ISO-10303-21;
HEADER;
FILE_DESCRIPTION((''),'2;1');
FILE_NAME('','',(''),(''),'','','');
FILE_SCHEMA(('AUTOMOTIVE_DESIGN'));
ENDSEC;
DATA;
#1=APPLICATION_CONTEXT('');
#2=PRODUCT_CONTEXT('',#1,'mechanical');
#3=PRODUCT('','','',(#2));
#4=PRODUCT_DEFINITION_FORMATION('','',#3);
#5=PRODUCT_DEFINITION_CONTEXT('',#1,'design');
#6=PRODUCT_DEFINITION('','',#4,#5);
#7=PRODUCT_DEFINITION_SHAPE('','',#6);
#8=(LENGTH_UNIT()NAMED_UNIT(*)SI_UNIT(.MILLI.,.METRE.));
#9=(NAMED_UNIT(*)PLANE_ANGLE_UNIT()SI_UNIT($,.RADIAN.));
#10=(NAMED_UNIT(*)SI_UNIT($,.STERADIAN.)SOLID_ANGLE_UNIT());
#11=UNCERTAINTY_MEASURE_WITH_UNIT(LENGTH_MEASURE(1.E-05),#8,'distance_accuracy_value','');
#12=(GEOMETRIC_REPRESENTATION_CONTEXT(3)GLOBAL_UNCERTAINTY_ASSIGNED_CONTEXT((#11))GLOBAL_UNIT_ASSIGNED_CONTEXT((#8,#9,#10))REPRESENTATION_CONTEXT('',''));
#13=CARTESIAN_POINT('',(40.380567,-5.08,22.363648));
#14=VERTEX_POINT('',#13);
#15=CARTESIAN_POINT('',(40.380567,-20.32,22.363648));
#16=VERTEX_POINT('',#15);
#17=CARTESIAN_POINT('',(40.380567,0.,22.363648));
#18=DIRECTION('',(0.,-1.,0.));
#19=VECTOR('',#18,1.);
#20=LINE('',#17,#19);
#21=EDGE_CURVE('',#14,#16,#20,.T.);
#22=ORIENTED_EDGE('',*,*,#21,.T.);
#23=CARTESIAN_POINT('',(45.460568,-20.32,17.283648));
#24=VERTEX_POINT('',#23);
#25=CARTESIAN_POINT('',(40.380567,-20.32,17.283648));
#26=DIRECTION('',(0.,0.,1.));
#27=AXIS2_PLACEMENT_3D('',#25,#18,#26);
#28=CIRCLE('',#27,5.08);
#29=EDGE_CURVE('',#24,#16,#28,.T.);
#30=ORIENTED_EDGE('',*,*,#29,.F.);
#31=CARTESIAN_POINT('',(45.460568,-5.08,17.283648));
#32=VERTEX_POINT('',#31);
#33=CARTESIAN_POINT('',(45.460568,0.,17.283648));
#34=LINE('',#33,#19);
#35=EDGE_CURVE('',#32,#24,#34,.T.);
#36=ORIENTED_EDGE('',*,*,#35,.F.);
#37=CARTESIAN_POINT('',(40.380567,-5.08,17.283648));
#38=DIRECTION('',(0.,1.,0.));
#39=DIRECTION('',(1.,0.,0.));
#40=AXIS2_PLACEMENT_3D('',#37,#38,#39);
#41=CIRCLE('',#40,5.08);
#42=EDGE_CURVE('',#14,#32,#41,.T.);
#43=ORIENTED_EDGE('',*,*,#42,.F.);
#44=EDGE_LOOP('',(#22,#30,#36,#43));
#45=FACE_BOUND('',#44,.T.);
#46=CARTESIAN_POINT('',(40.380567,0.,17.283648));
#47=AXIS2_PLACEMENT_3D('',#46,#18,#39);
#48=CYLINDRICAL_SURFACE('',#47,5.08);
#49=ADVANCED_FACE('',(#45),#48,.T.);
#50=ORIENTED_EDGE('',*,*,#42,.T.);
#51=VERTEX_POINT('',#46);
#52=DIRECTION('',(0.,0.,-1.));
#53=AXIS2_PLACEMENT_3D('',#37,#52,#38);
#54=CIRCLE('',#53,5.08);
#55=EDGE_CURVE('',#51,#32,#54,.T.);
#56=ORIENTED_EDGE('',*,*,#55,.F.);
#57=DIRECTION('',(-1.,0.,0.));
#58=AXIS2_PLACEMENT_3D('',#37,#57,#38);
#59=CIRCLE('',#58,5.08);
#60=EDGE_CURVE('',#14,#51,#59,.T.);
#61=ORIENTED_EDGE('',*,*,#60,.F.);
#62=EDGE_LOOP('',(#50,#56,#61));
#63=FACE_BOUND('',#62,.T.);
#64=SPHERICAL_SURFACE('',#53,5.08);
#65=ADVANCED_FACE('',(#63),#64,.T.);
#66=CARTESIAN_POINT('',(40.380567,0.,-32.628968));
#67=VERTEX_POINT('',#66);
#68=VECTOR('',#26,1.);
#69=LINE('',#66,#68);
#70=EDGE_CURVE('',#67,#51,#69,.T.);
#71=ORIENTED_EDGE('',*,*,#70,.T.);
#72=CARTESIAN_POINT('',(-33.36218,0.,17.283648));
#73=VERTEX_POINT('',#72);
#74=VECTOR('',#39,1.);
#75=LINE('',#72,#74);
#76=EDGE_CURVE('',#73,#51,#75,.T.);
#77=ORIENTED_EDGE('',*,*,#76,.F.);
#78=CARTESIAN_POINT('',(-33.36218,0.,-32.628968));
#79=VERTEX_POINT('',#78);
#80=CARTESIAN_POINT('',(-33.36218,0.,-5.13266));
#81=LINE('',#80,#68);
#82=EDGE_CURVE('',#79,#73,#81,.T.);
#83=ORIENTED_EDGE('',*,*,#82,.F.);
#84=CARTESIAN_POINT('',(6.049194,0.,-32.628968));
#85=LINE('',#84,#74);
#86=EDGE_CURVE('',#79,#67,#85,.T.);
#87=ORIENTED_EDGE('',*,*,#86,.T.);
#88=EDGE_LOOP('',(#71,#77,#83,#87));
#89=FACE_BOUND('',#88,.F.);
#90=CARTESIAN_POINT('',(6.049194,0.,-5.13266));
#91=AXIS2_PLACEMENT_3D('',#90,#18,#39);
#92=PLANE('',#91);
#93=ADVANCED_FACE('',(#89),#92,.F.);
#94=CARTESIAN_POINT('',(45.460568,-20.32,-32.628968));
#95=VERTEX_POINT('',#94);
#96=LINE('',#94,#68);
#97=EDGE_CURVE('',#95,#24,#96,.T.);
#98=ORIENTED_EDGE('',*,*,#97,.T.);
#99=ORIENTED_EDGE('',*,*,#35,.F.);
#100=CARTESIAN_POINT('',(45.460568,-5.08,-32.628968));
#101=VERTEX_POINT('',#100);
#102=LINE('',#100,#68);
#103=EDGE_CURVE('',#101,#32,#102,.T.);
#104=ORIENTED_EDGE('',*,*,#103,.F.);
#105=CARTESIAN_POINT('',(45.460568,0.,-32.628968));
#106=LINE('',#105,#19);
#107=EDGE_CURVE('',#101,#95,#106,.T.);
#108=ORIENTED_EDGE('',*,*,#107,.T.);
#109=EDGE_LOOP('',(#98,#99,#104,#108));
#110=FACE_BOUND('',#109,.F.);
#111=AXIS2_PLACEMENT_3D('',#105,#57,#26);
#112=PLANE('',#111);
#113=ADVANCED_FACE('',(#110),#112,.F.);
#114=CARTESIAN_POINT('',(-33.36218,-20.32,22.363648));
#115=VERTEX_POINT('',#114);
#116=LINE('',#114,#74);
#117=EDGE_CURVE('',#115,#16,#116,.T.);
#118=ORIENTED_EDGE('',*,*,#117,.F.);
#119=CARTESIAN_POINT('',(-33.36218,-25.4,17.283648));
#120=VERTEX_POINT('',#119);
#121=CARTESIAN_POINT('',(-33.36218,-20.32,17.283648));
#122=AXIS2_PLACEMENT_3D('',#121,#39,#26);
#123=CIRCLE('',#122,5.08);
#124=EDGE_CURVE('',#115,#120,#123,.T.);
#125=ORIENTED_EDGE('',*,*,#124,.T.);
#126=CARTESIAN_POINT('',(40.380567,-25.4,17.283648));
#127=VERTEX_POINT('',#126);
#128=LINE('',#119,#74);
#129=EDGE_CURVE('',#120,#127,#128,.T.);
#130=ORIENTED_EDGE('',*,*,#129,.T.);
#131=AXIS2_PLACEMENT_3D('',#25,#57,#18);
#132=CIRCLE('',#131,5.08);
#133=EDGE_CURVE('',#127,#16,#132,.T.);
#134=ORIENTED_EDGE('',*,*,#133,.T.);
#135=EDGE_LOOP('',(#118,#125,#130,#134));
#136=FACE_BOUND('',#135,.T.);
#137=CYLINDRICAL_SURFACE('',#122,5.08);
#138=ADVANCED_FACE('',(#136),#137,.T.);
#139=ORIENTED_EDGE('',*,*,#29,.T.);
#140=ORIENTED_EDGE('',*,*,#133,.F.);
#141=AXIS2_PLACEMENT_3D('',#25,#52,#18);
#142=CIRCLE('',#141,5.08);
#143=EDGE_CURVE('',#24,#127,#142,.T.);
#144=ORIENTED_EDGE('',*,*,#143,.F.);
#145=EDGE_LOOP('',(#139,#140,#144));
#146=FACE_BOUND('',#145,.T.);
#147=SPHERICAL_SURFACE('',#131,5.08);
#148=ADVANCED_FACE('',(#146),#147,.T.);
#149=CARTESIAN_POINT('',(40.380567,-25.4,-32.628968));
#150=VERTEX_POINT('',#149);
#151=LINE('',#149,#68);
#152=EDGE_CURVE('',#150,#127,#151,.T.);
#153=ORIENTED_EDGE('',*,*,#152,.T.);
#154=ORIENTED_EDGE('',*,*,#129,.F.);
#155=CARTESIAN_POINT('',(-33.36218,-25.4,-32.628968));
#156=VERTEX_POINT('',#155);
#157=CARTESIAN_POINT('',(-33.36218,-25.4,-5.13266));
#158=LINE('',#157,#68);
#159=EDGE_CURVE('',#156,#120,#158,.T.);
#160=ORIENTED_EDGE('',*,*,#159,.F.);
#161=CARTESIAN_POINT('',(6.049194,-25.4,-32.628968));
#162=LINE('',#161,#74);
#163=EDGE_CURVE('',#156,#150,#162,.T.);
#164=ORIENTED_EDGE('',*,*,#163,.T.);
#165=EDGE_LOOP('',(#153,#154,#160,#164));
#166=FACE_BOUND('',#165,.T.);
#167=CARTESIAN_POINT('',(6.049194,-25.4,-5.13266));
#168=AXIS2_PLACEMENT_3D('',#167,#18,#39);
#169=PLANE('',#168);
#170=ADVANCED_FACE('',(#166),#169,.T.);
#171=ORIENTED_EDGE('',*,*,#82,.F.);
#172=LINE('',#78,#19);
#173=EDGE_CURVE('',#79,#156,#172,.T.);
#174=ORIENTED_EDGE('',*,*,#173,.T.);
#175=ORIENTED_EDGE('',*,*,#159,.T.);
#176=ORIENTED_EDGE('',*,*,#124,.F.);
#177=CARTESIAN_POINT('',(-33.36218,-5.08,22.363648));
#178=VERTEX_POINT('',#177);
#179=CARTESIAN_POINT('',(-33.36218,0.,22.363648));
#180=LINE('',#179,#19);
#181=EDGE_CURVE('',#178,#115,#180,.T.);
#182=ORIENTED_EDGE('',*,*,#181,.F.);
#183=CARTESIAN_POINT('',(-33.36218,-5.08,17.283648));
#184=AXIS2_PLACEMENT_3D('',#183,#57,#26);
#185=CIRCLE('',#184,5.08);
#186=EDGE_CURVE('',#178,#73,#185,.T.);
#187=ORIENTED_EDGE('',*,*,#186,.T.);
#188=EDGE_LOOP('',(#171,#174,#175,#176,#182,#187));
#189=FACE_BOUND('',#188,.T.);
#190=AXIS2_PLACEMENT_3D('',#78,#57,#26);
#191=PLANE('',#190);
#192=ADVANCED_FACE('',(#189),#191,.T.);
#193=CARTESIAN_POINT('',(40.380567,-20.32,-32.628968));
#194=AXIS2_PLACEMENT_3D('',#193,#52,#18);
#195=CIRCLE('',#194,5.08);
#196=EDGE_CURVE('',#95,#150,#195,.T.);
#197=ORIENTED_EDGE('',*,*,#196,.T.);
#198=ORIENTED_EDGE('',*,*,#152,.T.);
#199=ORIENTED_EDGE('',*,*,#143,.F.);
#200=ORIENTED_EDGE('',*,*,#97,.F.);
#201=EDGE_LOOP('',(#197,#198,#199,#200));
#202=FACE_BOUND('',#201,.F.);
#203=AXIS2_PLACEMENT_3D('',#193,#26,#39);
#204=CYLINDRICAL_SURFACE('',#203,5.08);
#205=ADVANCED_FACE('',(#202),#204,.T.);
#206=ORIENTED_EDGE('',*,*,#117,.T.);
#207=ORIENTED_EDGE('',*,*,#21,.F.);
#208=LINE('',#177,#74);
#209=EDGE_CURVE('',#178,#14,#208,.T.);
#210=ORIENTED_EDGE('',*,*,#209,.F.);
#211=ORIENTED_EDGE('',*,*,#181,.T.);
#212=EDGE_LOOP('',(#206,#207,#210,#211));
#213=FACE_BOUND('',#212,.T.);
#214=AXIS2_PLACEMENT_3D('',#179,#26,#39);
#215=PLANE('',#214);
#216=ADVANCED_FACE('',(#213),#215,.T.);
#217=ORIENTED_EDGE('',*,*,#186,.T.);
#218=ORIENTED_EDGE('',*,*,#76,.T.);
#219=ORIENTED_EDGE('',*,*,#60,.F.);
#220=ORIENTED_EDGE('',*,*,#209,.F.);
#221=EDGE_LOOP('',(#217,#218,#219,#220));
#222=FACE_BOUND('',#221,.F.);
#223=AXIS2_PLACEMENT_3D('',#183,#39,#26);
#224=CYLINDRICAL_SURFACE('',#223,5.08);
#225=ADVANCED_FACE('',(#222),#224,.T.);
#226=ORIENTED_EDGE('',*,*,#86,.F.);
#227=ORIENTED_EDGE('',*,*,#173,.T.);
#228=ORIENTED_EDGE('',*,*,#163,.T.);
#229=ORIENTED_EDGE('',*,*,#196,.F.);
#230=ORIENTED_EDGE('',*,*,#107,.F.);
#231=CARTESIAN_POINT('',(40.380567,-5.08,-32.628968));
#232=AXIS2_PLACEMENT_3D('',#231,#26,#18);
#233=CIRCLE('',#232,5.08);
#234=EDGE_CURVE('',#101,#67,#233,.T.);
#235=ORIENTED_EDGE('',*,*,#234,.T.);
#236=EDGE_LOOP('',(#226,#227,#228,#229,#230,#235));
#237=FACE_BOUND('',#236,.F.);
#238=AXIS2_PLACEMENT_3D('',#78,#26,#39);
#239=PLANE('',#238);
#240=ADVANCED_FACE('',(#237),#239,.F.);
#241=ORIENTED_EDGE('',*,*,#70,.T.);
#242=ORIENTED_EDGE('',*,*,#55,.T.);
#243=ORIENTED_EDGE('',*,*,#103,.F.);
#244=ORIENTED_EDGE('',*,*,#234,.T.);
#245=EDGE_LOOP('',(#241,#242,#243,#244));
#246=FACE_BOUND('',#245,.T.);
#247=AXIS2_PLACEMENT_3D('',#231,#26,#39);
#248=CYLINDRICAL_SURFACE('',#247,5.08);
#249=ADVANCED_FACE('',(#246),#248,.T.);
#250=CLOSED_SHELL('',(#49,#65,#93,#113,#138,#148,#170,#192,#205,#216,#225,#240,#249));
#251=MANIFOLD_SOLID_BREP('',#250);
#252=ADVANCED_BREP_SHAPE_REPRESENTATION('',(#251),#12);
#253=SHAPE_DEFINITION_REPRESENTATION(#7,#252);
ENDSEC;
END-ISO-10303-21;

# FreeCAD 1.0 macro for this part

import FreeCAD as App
import Part
import Sketcher
from FreeCAD import Vector
Q = App.Units.Quantity


def edges_at(feature, points):
    """Names of the edges that pass closest to the given points."""
    edges = feature.Shape.Edges
    near = lambda p: min(range(len(edges)), key=lambda i: edges[i].distToShape(Part.Vertex(*p))[0])
    return sorted({f"Edge{near(p) + 1}" for p in points})

doc = App.newDocument("Part")
body = doc.addObject("PartDesign::Body", "Body")

# Sketch on XZ plane
sketch1 = body.newObject("Sketcher::SketchObject", "Sketch")
sketch1.AttachmentSupport = (doc.getObject("XZ_Plane"), [""])
sketch1.MapMode = "FlatFace"
sketch1.addGeometry([
    Part.LineSegment(Vector(-33, 22, 0), Vector(-33, -33, 0)),
    Part.LineSegment(Vector(-33, -33, 0), Vector(45, -33, 0)),
    Part.LineSegment(Vector(45, -33, 0), Vector(45, 22, 0)),
    Part.LineSegment(Vector(45, 22, 0), Vector(-33, 22, 0)),
], False)
sketch1.addConstraint([
    Sketcher.Constraint("Coincident", 0, 2, 1, 1),
    Sketcher.Constraint("Coincident", 1, 2, 2, 1),
    Sketcher.Constraint("Coincident", 2, 2, 3, 1),
    Sketcher.Constraint("Coincident", 3, 2, 0, 1),
    Sketcher.Constraint("Vertical", 0),
    Sketcher.Constraint("Horizontal", 1),
    Sketcher.Constraint("Vertical", 2),
    Sketcher.Constraint("Horizontal", 3),
    Sketcher.Constraint("DistanceX", 1, 1, 1, 2, 78.822747),
    Sketcher.Constraint("DistanceY", 0, 2, 0, 1, 54.992616),
    Sketcher.Constraint("DistanceX", 0, 2, -1, 1, 33.36218),
    Sketcher.Constraint("DistanceY", -1, 1, 2, 2, 22.363648),
])
pad1 = body.newObject("PartDesign::Pad", "Pad")
pad1.Profile = sketch1
pad1.Length = Q("1 in")
doc.recompute()

fillet = body.newObject("PartDesign::Fillet", "Fillet")
fillet.Base = (pad1, edges_at(pad1, [
    (6.049, -25.4, 22.364),
    (45.461, 0, -5.133),
    (45.461, -25.4, -5.133),
    (6.049, 0, 22.364),
    (45.461, -12.7, 22.364),
]))
fillet.Radius = Q("0.2 in")

doc.recompute()
